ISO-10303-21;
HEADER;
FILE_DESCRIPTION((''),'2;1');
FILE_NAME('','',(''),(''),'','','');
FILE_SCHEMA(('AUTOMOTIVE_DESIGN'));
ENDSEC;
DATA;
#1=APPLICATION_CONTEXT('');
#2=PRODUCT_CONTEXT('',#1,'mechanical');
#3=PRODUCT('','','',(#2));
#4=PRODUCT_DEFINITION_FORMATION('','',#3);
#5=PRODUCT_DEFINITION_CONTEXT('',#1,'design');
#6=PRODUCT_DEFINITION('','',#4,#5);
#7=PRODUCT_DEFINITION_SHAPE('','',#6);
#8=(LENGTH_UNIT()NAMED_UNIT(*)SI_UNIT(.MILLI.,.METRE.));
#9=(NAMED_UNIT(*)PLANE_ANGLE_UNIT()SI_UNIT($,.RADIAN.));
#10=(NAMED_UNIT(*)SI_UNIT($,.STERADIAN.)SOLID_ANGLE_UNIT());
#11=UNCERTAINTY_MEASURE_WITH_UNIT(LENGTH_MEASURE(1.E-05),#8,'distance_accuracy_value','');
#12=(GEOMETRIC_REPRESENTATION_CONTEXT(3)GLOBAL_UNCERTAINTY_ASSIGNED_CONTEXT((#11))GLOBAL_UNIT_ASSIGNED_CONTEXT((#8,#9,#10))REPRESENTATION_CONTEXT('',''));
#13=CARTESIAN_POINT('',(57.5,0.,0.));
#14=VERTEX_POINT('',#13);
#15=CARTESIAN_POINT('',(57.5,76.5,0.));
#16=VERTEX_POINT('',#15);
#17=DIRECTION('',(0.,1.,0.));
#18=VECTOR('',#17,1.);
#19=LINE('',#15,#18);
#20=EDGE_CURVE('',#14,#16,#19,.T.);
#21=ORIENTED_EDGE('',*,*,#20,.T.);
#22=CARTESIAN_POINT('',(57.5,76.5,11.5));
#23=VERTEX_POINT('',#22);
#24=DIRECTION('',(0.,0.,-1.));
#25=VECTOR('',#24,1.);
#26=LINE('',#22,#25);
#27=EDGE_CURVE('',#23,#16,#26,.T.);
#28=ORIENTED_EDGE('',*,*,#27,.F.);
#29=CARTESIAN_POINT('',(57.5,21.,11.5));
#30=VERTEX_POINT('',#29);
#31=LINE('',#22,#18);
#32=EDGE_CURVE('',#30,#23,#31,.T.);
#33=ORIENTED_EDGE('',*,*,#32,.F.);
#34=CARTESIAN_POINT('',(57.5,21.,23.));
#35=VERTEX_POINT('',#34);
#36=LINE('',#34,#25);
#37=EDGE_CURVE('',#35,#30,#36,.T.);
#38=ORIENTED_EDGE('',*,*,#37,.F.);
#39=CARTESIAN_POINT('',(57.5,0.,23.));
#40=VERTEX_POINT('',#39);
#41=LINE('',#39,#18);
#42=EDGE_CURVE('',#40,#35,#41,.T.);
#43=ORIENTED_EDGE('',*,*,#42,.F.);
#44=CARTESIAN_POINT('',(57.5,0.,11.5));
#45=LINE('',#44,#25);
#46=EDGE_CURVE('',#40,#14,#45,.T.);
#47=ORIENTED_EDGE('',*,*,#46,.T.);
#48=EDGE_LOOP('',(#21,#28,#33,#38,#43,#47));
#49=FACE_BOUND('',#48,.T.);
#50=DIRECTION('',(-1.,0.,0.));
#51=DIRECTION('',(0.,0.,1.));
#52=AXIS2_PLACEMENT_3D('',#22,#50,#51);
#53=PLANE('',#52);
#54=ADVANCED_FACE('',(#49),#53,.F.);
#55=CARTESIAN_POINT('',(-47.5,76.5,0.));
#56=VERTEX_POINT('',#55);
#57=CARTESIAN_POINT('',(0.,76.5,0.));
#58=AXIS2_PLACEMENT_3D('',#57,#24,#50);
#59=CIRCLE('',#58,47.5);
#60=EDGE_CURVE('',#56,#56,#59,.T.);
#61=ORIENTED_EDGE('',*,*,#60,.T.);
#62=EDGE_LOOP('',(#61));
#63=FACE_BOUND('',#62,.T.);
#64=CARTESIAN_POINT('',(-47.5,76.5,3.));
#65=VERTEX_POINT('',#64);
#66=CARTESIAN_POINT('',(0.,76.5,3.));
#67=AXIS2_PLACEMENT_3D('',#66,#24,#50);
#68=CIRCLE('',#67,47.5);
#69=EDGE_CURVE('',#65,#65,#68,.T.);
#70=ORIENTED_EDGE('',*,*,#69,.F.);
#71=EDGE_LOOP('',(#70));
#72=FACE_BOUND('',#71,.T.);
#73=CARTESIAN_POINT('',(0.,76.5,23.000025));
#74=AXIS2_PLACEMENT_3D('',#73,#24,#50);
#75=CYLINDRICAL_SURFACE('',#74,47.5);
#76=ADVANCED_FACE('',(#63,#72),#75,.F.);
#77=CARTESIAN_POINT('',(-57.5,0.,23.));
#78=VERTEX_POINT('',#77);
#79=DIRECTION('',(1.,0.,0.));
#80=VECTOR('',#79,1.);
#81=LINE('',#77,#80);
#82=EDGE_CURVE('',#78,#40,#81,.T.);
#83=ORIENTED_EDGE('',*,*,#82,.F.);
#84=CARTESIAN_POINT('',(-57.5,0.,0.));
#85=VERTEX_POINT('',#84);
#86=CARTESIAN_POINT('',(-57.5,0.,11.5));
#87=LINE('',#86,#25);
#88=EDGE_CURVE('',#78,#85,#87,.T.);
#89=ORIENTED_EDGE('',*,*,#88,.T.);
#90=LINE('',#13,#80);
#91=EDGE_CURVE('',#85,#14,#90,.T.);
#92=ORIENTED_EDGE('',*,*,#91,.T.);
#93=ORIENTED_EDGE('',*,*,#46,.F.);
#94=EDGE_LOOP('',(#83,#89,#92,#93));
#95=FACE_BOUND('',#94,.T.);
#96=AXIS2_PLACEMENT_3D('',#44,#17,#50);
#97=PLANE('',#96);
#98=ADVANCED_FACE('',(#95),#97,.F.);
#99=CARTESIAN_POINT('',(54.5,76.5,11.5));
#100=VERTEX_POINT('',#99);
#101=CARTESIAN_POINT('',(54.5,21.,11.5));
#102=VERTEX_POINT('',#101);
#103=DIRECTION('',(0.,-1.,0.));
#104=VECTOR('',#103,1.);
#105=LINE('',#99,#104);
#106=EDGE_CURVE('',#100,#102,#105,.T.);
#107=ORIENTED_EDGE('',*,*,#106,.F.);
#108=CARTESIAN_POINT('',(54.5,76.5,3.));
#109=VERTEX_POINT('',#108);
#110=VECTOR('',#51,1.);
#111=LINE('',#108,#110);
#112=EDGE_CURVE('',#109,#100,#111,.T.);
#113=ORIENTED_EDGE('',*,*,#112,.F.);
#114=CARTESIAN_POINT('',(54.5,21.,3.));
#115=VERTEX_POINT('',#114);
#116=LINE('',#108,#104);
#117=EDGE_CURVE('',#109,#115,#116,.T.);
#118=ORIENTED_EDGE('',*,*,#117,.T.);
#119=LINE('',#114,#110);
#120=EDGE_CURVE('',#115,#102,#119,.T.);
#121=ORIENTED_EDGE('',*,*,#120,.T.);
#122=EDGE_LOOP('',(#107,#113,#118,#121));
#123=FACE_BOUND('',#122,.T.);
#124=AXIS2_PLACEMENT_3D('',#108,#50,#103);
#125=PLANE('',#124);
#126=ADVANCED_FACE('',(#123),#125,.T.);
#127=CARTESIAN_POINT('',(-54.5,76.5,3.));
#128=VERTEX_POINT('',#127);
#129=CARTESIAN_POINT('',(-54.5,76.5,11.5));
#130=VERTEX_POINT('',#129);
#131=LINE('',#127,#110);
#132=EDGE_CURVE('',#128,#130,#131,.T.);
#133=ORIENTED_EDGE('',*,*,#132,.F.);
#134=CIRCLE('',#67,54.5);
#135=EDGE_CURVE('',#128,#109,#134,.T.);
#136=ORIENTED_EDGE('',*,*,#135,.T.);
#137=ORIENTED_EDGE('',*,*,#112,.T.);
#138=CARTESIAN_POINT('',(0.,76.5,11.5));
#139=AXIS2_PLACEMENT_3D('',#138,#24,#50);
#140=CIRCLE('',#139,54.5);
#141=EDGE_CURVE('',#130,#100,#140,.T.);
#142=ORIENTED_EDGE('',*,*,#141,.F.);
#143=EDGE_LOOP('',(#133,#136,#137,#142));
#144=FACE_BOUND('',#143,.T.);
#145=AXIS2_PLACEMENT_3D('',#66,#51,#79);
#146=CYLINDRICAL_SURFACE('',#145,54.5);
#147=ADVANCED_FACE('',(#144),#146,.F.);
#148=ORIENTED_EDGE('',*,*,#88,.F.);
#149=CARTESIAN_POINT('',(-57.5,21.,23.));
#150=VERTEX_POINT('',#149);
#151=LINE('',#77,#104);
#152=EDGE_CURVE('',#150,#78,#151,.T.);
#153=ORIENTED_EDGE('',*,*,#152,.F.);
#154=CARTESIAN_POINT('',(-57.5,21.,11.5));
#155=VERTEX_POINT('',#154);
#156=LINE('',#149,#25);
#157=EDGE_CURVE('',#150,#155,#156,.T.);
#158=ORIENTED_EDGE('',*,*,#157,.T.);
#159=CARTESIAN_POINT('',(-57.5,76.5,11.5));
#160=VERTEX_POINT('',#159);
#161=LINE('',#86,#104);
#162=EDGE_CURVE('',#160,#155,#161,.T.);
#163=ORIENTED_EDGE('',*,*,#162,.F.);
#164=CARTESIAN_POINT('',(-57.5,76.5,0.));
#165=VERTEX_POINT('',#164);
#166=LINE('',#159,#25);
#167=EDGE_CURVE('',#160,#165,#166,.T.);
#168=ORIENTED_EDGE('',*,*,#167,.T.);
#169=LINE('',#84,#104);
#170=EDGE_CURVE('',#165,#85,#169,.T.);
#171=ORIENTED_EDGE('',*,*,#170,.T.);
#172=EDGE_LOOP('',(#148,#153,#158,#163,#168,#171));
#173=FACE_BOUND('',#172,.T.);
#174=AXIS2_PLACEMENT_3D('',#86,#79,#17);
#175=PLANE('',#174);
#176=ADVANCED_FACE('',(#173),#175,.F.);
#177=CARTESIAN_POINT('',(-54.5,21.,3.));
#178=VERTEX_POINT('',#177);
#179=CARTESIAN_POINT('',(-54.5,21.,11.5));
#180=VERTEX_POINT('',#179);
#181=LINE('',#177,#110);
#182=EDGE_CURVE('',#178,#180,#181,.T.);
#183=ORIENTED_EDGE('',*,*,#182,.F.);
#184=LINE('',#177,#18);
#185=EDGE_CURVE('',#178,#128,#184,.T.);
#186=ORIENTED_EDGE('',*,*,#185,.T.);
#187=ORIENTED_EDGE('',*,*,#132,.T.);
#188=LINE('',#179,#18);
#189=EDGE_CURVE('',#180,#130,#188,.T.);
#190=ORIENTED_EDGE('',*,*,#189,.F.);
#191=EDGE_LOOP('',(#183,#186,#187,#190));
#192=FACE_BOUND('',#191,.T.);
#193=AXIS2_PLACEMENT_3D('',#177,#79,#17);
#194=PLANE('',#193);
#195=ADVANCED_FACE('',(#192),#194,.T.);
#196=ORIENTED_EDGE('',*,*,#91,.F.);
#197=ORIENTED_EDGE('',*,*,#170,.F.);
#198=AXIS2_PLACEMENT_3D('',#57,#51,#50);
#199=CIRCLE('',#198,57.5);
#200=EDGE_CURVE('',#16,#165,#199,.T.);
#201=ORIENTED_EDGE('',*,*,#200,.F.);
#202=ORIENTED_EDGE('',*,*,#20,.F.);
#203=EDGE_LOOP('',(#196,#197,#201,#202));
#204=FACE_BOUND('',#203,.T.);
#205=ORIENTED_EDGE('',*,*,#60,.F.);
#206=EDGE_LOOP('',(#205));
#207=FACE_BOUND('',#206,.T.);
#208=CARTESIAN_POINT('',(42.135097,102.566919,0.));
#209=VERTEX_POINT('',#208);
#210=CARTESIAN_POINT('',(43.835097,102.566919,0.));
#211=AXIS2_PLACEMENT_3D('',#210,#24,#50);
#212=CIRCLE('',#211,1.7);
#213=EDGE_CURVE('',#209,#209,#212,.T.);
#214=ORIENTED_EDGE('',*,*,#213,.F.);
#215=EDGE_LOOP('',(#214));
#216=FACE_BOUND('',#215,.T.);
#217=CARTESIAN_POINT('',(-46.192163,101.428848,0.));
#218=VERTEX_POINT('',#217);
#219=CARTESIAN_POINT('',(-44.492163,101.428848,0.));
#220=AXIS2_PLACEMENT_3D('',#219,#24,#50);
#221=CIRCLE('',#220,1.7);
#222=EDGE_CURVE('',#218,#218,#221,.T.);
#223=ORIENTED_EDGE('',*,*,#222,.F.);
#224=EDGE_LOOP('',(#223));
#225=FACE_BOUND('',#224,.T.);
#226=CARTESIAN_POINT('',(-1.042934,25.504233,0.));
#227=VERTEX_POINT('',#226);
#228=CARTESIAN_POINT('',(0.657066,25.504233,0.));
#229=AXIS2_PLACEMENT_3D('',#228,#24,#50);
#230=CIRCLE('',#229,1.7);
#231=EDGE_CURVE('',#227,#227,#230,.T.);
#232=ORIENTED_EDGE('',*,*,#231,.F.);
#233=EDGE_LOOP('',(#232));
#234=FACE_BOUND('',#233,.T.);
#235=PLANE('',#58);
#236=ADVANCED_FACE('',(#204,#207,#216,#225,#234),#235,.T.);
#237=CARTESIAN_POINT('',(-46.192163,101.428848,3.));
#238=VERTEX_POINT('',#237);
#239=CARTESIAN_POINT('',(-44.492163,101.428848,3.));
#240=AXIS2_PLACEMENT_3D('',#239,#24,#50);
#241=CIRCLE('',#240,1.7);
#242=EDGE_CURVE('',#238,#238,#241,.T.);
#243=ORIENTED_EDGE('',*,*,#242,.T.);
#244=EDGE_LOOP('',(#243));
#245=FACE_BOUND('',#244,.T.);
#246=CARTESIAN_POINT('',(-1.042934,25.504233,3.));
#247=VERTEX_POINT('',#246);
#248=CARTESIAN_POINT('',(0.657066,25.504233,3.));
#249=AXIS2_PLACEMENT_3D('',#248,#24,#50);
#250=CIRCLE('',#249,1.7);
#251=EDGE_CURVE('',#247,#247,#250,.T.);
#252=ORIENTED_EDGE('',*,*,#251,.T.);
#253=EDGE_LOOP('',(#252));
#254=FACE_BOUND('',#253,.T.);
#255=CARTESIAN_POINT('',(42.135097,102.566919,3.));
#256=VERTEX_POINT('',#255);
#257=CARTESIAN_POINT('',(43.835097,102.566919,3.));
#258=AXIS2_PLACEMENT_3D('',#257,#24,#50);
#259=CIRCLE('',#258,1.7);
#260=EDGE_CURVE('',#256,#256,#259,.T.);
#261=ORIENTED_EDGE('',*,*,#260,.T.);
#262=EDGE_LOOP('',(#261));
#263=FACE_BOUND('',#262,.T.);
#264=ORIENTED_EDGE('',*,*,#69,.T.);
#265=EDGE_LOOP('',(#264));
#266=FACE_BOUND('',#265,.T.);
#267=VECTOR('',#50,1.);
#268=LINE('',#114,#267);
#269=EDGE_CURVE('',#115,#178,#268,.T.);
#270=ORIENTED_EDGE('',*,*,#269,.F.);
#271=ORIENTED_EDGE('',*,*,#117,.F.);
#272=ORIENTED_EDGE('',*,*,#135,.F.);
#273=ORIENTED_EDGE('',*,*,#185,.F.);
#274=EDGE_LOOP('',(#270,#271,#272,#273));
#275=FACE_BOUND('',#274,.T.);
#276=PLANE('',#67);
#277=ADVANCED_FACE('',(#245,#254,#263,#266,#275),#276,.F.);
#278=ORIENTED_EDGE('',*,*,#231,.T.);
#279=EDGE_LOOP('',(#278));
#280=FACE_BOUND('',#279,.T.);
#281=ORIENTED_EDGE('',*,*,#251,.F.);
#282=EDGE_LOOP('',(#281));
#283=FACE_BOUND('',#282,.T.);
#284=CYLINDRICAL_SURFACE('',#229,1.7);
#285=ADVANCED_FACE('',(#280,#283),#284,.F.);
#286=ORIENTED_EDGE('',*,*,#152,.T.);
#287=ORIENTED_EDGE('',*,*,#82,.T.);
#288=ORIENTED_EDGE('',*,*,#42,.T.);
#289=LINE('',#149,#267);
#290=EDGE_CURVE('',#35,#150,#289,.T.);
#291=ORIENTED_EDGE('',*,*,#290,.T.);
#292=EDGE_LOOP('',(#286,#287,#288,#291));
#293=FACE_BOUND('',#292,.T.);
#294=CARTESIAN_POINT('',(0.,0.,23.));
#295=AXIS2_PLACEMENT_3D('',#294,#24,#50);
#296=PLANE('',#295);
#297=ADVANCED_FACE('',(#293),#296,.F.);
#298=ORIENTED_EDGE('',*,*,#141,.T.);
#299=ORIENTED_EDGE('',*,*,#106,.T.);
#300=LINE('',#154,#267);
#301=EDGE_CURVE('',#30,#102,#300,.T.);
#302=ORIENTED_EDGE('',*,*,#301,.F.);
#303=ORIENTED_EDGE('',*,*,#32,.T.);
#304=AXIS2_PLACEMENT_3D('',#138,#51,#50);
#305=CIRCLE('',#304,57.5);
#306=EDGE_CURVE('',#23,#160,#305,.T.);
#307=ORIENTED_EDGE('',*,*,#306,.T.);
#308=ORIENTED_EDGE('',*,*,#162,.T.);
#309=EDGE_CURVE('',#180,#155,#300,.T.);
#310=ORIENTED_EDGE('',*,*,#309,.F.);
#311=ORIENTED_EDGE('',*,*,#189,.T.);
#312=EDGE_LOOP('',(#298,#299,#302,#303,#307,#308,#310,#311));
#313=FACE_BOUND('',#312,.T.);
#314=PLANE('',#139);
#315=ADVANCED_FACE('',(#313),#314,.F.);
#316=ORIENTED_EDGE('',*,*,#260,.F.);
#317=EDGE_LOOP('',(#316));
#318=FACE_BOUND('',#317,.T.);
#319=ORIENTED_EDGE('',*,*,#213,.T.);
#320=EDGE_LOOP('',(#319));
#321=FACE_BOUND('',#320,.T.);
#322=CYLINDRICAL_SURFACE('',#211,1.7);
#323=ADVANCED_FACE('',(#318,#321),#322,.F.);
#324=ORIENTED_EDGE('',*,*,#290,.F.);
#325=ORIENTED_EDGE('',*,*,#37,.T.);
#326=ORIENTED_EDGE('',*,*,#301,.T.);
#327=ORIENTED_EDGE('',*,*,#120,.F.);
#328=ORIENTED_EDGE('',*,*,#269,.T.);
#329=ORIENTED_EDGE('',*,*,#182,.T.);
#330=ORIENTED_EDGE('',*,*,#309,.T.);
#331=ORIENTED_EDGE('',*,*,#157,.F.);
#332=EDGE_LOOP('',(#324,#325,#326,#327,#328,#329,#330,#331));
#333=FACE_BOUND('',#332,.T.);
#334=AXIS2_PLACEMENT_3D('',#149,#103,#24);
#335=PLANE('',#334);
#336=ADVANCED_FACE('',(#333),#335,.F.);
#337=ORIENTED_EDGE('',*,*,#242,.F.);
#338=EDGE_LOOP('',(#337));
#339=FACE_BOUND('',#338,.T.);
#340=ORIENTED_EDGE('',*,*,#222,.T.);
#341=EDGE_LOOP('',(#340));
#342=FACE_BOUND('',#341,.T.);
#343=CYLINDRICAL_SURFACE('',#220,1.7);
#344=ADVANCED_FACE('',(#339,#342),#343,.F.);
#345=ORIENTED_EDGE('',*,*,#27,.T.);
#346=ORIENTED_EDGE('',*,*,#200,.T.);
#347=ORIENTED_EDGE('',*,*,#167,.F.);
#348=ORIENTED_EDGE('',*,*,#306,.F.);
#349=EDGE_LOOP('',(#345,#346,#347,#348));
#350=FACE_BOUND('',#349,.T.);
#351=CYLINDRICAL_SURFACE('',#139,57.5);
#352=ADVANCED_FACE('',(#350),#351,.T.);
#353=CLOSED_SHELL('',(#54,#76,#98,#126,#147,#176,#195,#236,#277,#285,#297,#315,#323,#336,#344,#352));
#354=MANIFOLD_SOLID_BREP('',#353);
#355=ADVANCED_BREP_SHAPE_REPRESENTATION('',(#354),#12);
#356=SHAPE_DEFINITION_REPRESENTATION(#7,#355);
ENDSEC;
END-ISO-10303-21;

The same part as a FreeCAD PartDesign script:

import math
import FreeCAD as App
import Part
import Sketcher
from FreeCAD import Vector
Q = App.Units.Quantity


def add_polygon(sketch, points):
    """Adds a closed chain of lines whose ends are joined by coincident constraints."""
    first, n = sketch.GeometryCount, len(points)
    for a, b in zip(points, points[1:] + points[:1]):
        sketch.addGeometry(Part.LineSegment(App.Vector(*a, 0), App.Vector(*b, 0)), False)
    for i in range(n):
        sketch.addConstraint(Sketcher.Constraint("Coincident", first + i, 2, first + (i + 1) % n, 1))

doc = App.newDocument("Part")
body = doc.addObject("PartDesign::Body", "Body")

sketch1 = body.newObject("Sketcher::SketchObject", "Sketch")
sketch1.AttachmentSupport = (doc.getObject("XY_Plane"), [""])
sketch1.MapMode = "FlatFace"
sketch1.addGeometry([
    Part.LineSegment(Vector(-58, 0, 0), Vector(58, 0, 0)),
    Part.LineSegment(Vector(58, 0, 0), Vector(58, 76, 0)),
    Part.ArcOfCircle(Part.Circle(Vector(0, 76, 0), Vector(0, 0, 1), 58), math.radians(0), math.radians(180)),
    Part.LineSegment(Vector(-58, 76, 0), Vector(-58, 0, 0)),
], False)
sketch1.addConstraint([
    Sketcher.Constraint("Coincident", 0, 2, 1, 1),
    Sketcher.Constraint("Tangent", 1, 2, 2, 1),
    Sketcher.Constraint("Tangent", 2, 2, 3, 1),
    Sketcher.Constraint("Coincident", 3, 2, 0, 1),
    Sketcher.Constraint("Horizontal", 0),
    Sketcher.Constraint("Vertical", 1),
    Sketcher.Constraint("Vertical", 3),
    Sketcher.Constraint("Symmetric", 0, 2, 3, 2, -1, 1),
    Sketcher.Constraint("Radius", 2, Q("57.5 mm")),
    Sketcher.Constraint("DistanceY", 1, 1, 1, 2, Q("76.5 mm")),
])
pad1 = body.newObject("PartDesign::Pad", "Pad")
pad1.Profile = sketch1
pad1.Length = 11.5

sketch2 = body.newObject("Sketcher::SketchObject", "Sketch001")
sketch2.AttachmentSupport = (doc.getObject("XY_Plane"), [""])
sketch2.MapMode = "FlatFace"
sketch2.AttachmentOffset = App.Placement(Vector(0, 0, 11.5), App.Rotation())
add_polygon(sketch2, [(-58, 21), (-58, 0), (58, 0), (58, 21)])
sketch2.addConstraint([
    Sketcher.Constraint("Vertical", 0),
    Sketcher.Constraint("Horizontal", 1),
    Sketcher.Constraint("Vertical", 2),
    Sketcher.Constraint("Horizontal", 3),
    Sketcher.Constraint("Symmetric", 0, 2, 1, 2, -1, 1),
    Sketcher.Constraint("DistanceX", 1, 1, 1, 2, Q("115 mm")),
    Sketcher.Constraint("DistanceY", 0, 2, 0, 1, Q("21 mm")),
])
pad2 = body.newObject("PartDesign::Pad", "Pad001")
pad2.Profile = sketch2
pad2.Length = 11.5

sketch3 = body.newObject("Sketcher::SketchObject", "Sketch002")
sketch3.AttachmentSupport = (doc.getObject("XY_Plane"), [""])
sketch3.MapMode = "FlatFace"
sketch3.AttachmentOffset = App.Placement(Vector(0, 0, 11.5), App.Rotation())
sketch3.addGeometry([
    Part.LineSegment(Vector(-54, 76, 0), Vector(-54, 21, 0)),
    Part.LineSegment(Vector(-54, 21, 0), Vector(54, 21, 0)),
    Part.LineSegment(Vector(54, 21, 0), Vector(54, 76, 0)),
    Part.ArcOfCircle(Part.Circle(Vector(0, 76, 0), Vector(0, 0, 1), 54), math.radians(0), math.radians(180)),
], False)
sketch3.addConstraint([
    Sketcher.Constraint("Coincident", 0, 2, 1, 1),
    Sketcher.Constraint("Coincident", 1, 2, 2, 1),
    Sketcher.Constraint("Tangent", 2, 2, 3, 1),
    Sketcher.Constraint("Tangent", 3, 2, 0, 1),
    Sketcher.Constraint("Vertical", 0),
    Sketcher.Constraint("Horizontal", 1),
    Sketcher.Constraint("Vertical", 2),
    Sketcher.Constraint("PointOnObject", 3, 3, -2),
    Sketcher.Constraint("Radius", 3, Q("54.5 mm")),
    Sketcher.Constraint("DistanceY", 0, 2, 0, 1, Q("55.5 mm")),
    Sketcher.Constraint("DistanceY", -1, 1, 0, 2, Q("21 mm")),
])
pocket1 = body.newObject("PartDesign::Pocket", "Pocket")
pocket1.Profile = sketch3
pocket1.Length = 8.5

sketch4 = body.newObject("Sketcher::SketchObject", "Sketch003")
sketch4.AttachmentSupport = (doc.getObject("XY_Plane"), [""])
sketch4.MapMode = "FlatFace"
sketch4.addGeometry(Part.Circle(Vector(0, 76, 0), Vector(0, 0, 1), 48), False)
sketch4.addConstraint([
    Sketcher.Constraint("PointOnObject", 0, 3, -2),
    Sketcher.Constraint("Diameter", 0, Q("95 mm")),
    Sketcher.Constraint("DistanceY", -1, 1, 0, 3, Q("76.5 mm")),
])
pocket2 = body.newObject("PartDesign::Pocket", "Pocket001")
pocket2.Profile = sketch4
pocket2.Type = "ThroughAll"
pocket2.Reversed = True

sketch5 = body.newObject("Sketcher::SketchObject", "Sketch004")
sketch5.AttachmentSupport = (doc.getObject("XY_Plane"), [""])
sketch5.MapMode = "FlatFace"
sketch5.addGeometry([
    Part.Circle(Vector(43.8, 102.6, 0), Vector(0, 0, 1), 1.7),
    Part.Circle(Vector(-44.5, 101.4, 0), Vector(0, 0, 1), 1.7),
    Part.Circle(Vector(0.7, 25.5, 0), Vector(0, 0, 1), 1.7),
], False)
sketch5.addConstraint([
    Sketcher.Constraint("Equal", 0, 1),
    Sketcher.Constraint("Equal", 1, 2),
    Sketcher.Constraint("Diameter", 0, Q("3.4 mm")),
    Sketcher.Constraint("DistanceY", -1, 1, 0, 3, Q("102.566919 mm")),
    Sketcher.Constraint("DistanceX", 1, 3, 0, 3, Q("88.32726 mm")),
    Sketcher.Constraint("DistanceY", 1, 3, 0, 3, Q("1.138071 mm")),
    Sketcher.Constraint("DistanceX", 2, 3, 0, 3, Q("43.178031 mm")),
    Sketcher.Constraint("DistanceX", -1, 1, 0, 3, Q("43.835097 mm")),
    Sketcher.Constraint("DistanceY", -1, 1, 2, 3, Q("25.504233 mm")),
])
doc.recompute()
hole = body.newObject("PartDesign::Hole", "Hole")
hole.Profile = sketch5
hole.ThreadType = "None"
hole.Diameter = 3.4
hole.DepthType = "ThroughAll"
hole.Reversed = True

doc.recompute()
